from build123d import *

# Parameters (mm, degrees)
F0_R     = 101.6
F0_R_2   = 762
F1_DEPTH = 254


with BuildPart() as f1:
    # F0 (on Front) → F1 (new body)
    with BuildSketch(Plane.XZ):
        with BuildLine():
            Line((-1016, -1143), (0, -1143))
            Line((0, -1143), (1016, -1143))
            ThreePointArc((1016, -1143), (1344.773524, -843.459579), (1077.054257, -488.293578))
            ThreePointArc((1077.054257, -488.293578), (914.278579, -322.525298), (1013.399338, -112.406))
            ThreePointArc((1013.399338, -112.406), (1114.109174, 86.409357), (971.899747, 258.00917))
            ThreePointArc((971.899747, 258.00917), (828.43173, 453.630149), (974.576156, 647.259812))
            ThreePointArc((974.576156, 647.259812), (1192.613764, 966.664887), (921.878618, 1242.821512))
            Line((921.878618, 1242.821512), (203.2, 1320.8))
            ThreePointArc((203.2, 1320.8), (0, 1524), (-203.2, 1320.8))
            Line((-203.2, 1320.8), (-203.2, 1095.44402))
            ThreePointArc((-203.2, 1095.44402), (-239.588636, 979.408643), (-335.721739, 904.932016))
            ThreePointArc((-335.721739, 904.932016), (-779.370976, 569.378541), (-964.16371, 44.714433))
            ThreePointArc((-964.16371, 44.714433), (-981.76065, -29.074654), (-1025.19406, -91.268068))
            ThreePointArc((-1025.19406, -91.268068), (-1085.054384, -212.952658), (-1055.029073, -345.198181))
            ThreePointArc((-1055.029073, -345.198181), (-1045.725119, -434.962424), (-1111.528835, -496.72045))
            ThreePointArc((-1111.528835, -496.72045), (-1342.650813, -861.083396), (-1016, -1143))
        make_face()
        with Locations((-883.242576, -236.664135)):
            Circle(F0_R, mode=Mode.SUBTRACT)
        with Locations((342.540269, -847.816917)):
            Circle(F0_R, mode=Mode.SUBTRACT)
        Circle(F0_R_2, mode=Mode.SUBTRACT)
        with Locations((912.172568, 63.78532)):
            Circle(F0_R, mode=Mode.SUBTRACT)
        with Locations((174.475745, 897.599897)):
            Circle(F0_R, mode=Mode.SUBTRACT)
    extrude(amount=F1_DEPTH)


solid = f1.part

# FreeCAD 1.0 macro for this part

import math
import FreeCAD as App
import Part
import Sketcher
from FreeCAD import Vector
Q = App.Units.Quantity

doc = App.newDocument("Part")
params = doc.addObject("Spreadsheet::Sheet", "Params")
for row, (alias, value) in enumerate([
    ("sketch1_diameter", "8 in"),
    ("sketch1_diameter2", "60 in"),
    ("sketch1_radius", "13 in"),
    ("sketch1_radius2", "8 in"),
    ("sketch1_radius3", "12 in"),
    ("pad1_length", "10 in"),
], start=1):
    params.set(f"A{row}", alias)
    params.set(f"B{row}", "=" + value)
    params.setAlias(f"B{row}", alias)

body = doc.addObject("PartDesign::Body", "Body")

# Sketch on XZ plane
sketch1 = body.newObject("Sketcher::SketchObject", "Sketch")
sketch1.AttachmentSupport = (doc.getObject("XZ_Plane"), [""])
sketch1.MapMode = "FlatFace"
sketch1.addGeometry([
    Part.LineSegment(Vector(-1016, -1143, 0), Vector(1016, -1143, 0)),  # 0
    Part.ArcOfCircle(Part.Circle(Vector(1016, -813, 0), Vector(0, 0, 1), 330), math.radians(-90), math.radians(79)),  # 1
    Part.ArcOfCircle(Part.Circle(Vector(1115, -289, 0), Vector(0, 0, 1), 203), math.radians(120), math.radians(259)),  # 2
    Part.ArcOfCircle(Part.Circle(Vector(912, 64, 0), Vector(0, 0, 1), 203), math.radians(-60), math.radians(73)),  # 3
    Part.ArcOfCircle(Part.Circle(Vector(1032, 452, 0), Vector(0, 0, 1), 203), math.radians(106), math.radians(253)),  # 4
    Part.ArcOfCircle(Part.Circle(Vector(889, 940, 0), Vector(0, 0, 1), 305), math.radians(-74), math.radians(84)),  # 5
    Part.LineSegment(Vector(922, 1243, 0), Vector(203, 1321, 0)),  # 6
    Part.ArcOfCircle(Part.Circle(Vector(0, 1321, 0), Vector(0, 0, 1), 203), math.radians(0), math.radians(180)),  # 7
    Part.LineSegment(Vector(-203, 1321, 0), Vector(-203, 1095, 0)),  # 8
    Part.ArcOfCircle(Part.Circle(Vector(-406, 1095, 0), Vector(0, 0, 1), 203), math.radians(-70), math.radians(0)),  # 9
    Part.ArcOfCircle(Part.Circle(Vector(0, 0, 0), Vector(0, 0, 1), 965), math.radians(110), math.radians(177)),  # 10
    Part.ArcOfCircle(Part.Circle(Vector(-1167, 54, 0), Vector(0, 0, 1), 203), math.radians(-46), math.radians(-3)),  # 11
    Part.ArcOfCircle(Part.Circle(Vector(-883, -237, 0), Vector(0, 0, 1), 203), math.radians(134), math.radians(212)),  # 12
    Part.ArcOfCircle(Part.Circle(Vector(-1141, -399, 0), Vector(0, 0, 1), 102), math.radians(-73), math.radians(32)),  # 13
    Part.ArcOfCircle(Part.Circle(Vector(-1016, -813, 0), Vector(0, 0, 1), 330), math.radians(107), math.radians(270)),  # 14
    Part.Circle(Vector(-883, -237, 0), Vector(0, 0, 1), 102),  # 15
    Part.Circle(Vector(0, 0, 0), Vector(0, 0, 1), 762),  # 16
    Part.Circle(Vector(343, -848, 0), Vector(0, 0, 1), 102),  # 17
    Part.Circle(Vector(912, 64, 0), Vector(0, 0, 1), 102),  # 18
    Part.Circle(Vector(174, 898, 0), Vector(0, 0, 1), 102),  # 19
], False)
sketch1.addConstraint([
    Sketcher.Constraint("Tangent", 0, 2, 1, 1),
    Sketcher.Constraint("Tangent", 1, 2, 2, 2),
    Sketcher.Constraint("Tangent", 2, 1, 3, 1),
    Sketcher.Constraint("Tangent", 3, 2, 4, 2),
    Sketcher.Constraint("Tangent", 4, 1, 5, 1),
    Sketcher.Constraint("Tangent", 5, 2, 6, 1),
    Sketcher.Constraint("Coincident", 6, 2, 7, 1),
    Sketcher.Constraint("Tangent", 7, 2, 8, 1),
    Sketcher.Constraint("Tangent", 8, 2, 9, 2),
    Sketcher.Constraint("Tangent", 9, 1, 10, 1),
    Sketcher.Constraint("Tangent", 10, 2, 11, 2),
    Sketcher.Constraint("Tangent", 11, 1, 12, 1),
    Sketcher.Constraint("Tangent", 12, 2, 13, 2),
    Sketcher.Constraint("Tangent", 13, 1, 14, 1),
    Sketcher.Constraint("Tangent", 14, 2, 0, 1),
    Sketcher.Constraint("Horizontal", 0),
    Sketcher.Constraint("Vertical", 8),
    Sketcher.Constraint("Coincident", 10, 3, -1, 1),
    Sketcher.Constraint("Coincident", 16, 3, -1, 1),
    Sketcher.Constraint("Coincident", 15, 3, 12, 3),
    Sketcher.Constraint("Coincident", 18, 3, 3, 3),
    Sketcher.Constraint("Equal", 2, 3),
    Sketcher.Constraint("Equal", 3, 4),
    Sketcher.Constraint("Equal", 4, 7),
    Sketcher.Constraint("Equal", 7, 12),
    Sketcher.Constraint("Equal", 1, 14),
    Sketcher.Constraint("Equal", 13, 15),
    Sketcher.Constraint("Equal", 15, 17),
    Sketcher.Constraint("Equal", 17, 18),
    Sketcher.Constraint("Equal", 18, 19),
    Sketcher.Constraint("Symmetric", 6, 2, 7, 2, -2),
    Sketcher.Constraint("Diameter", 15, Q("8 in")),
    Sketcher.Constraint("Diameter", 16, Q("60 in")),
    Sketcher.Constraint("Radius", 1, Q("13 in")),
    Sketcher.Constraint("Radius", 2, Q("8 in")),
    Sketcher.Constraint("Radius", 5, Q("12 in")),
    Sketcher.Constraint("Radius", 9, Q("8.0000001 in")),
    Sketcher.Constraint("Radius", 10, Q("37.9999999 in")),
    Sketcher.Constraint("DistanceX", 0, 1, 0, 2, Q("80 in")),
    Sketcher.Constraint("DistanceX", -1, 1, 1, 3, Q("40 in")),
    Sketcher.Constraint("DistanceY", 1, 3, -1, 1, Q("32 in")),
    Sketcher.Constraint("DistanceX", -1, 1, 5, 3, Q("35 in")),
    Sketcher.Constraint("DistanceY", -1, 1, 5, 3, Q("37 in")),
    Sketcher.Constraint("DistanceY", -1, 1, 7, 3, Q("52 in")),
    Sketcher.Constraint("Radius", 11, 203.199992),
    Sketcher.Constraint("DistanceY", 13, 3, 11, 3, Q("17.858 in")),
    Sketcher.Constraint("DistanceY", 2, 1, -1, 1, 112.406),
    Sketcher.Constraint("DistanceY", 3, 3, 4, 3, 388.447701),
    Sketcher.Constraint("DistanceX", 17, 3, 3, 3, 569.632299),
    Sketcher.Constraint("DistanceX", 13, 3, -1, 1, 1140.922321),
    Sketcher.Constraint("DistanceY", 17, 3, 10, 3, 847.816919),
    Sketcher.Constraint("DistanceX", 9, 3, 19, 3, 580.875748),
    Sketcher.Constraint("DistanceY", 19, 3, 9, 1, 7.332119),
])
sketch1.setExpression("Constraints[31]", "Params.sketch1_diameter")
sketch1.setExpression("Constraints[32]", "Params.sketch1_diameter2")
sketch1.setExpression("Constraints[33]", "Params.sketch1_radius")
sketch1.setExpression("Constraints[34]", "Params.sketch1_radius2")
sketch1.setExpression("Constraints[35]", "Params.sketch1_radius3")
pad1 = body.newObject("PartDesign::Pad", "Pad")
pad1.Profile = sketch1
pad1.setExpression("Length", "Params.pad1_length")

doc.recompute()
